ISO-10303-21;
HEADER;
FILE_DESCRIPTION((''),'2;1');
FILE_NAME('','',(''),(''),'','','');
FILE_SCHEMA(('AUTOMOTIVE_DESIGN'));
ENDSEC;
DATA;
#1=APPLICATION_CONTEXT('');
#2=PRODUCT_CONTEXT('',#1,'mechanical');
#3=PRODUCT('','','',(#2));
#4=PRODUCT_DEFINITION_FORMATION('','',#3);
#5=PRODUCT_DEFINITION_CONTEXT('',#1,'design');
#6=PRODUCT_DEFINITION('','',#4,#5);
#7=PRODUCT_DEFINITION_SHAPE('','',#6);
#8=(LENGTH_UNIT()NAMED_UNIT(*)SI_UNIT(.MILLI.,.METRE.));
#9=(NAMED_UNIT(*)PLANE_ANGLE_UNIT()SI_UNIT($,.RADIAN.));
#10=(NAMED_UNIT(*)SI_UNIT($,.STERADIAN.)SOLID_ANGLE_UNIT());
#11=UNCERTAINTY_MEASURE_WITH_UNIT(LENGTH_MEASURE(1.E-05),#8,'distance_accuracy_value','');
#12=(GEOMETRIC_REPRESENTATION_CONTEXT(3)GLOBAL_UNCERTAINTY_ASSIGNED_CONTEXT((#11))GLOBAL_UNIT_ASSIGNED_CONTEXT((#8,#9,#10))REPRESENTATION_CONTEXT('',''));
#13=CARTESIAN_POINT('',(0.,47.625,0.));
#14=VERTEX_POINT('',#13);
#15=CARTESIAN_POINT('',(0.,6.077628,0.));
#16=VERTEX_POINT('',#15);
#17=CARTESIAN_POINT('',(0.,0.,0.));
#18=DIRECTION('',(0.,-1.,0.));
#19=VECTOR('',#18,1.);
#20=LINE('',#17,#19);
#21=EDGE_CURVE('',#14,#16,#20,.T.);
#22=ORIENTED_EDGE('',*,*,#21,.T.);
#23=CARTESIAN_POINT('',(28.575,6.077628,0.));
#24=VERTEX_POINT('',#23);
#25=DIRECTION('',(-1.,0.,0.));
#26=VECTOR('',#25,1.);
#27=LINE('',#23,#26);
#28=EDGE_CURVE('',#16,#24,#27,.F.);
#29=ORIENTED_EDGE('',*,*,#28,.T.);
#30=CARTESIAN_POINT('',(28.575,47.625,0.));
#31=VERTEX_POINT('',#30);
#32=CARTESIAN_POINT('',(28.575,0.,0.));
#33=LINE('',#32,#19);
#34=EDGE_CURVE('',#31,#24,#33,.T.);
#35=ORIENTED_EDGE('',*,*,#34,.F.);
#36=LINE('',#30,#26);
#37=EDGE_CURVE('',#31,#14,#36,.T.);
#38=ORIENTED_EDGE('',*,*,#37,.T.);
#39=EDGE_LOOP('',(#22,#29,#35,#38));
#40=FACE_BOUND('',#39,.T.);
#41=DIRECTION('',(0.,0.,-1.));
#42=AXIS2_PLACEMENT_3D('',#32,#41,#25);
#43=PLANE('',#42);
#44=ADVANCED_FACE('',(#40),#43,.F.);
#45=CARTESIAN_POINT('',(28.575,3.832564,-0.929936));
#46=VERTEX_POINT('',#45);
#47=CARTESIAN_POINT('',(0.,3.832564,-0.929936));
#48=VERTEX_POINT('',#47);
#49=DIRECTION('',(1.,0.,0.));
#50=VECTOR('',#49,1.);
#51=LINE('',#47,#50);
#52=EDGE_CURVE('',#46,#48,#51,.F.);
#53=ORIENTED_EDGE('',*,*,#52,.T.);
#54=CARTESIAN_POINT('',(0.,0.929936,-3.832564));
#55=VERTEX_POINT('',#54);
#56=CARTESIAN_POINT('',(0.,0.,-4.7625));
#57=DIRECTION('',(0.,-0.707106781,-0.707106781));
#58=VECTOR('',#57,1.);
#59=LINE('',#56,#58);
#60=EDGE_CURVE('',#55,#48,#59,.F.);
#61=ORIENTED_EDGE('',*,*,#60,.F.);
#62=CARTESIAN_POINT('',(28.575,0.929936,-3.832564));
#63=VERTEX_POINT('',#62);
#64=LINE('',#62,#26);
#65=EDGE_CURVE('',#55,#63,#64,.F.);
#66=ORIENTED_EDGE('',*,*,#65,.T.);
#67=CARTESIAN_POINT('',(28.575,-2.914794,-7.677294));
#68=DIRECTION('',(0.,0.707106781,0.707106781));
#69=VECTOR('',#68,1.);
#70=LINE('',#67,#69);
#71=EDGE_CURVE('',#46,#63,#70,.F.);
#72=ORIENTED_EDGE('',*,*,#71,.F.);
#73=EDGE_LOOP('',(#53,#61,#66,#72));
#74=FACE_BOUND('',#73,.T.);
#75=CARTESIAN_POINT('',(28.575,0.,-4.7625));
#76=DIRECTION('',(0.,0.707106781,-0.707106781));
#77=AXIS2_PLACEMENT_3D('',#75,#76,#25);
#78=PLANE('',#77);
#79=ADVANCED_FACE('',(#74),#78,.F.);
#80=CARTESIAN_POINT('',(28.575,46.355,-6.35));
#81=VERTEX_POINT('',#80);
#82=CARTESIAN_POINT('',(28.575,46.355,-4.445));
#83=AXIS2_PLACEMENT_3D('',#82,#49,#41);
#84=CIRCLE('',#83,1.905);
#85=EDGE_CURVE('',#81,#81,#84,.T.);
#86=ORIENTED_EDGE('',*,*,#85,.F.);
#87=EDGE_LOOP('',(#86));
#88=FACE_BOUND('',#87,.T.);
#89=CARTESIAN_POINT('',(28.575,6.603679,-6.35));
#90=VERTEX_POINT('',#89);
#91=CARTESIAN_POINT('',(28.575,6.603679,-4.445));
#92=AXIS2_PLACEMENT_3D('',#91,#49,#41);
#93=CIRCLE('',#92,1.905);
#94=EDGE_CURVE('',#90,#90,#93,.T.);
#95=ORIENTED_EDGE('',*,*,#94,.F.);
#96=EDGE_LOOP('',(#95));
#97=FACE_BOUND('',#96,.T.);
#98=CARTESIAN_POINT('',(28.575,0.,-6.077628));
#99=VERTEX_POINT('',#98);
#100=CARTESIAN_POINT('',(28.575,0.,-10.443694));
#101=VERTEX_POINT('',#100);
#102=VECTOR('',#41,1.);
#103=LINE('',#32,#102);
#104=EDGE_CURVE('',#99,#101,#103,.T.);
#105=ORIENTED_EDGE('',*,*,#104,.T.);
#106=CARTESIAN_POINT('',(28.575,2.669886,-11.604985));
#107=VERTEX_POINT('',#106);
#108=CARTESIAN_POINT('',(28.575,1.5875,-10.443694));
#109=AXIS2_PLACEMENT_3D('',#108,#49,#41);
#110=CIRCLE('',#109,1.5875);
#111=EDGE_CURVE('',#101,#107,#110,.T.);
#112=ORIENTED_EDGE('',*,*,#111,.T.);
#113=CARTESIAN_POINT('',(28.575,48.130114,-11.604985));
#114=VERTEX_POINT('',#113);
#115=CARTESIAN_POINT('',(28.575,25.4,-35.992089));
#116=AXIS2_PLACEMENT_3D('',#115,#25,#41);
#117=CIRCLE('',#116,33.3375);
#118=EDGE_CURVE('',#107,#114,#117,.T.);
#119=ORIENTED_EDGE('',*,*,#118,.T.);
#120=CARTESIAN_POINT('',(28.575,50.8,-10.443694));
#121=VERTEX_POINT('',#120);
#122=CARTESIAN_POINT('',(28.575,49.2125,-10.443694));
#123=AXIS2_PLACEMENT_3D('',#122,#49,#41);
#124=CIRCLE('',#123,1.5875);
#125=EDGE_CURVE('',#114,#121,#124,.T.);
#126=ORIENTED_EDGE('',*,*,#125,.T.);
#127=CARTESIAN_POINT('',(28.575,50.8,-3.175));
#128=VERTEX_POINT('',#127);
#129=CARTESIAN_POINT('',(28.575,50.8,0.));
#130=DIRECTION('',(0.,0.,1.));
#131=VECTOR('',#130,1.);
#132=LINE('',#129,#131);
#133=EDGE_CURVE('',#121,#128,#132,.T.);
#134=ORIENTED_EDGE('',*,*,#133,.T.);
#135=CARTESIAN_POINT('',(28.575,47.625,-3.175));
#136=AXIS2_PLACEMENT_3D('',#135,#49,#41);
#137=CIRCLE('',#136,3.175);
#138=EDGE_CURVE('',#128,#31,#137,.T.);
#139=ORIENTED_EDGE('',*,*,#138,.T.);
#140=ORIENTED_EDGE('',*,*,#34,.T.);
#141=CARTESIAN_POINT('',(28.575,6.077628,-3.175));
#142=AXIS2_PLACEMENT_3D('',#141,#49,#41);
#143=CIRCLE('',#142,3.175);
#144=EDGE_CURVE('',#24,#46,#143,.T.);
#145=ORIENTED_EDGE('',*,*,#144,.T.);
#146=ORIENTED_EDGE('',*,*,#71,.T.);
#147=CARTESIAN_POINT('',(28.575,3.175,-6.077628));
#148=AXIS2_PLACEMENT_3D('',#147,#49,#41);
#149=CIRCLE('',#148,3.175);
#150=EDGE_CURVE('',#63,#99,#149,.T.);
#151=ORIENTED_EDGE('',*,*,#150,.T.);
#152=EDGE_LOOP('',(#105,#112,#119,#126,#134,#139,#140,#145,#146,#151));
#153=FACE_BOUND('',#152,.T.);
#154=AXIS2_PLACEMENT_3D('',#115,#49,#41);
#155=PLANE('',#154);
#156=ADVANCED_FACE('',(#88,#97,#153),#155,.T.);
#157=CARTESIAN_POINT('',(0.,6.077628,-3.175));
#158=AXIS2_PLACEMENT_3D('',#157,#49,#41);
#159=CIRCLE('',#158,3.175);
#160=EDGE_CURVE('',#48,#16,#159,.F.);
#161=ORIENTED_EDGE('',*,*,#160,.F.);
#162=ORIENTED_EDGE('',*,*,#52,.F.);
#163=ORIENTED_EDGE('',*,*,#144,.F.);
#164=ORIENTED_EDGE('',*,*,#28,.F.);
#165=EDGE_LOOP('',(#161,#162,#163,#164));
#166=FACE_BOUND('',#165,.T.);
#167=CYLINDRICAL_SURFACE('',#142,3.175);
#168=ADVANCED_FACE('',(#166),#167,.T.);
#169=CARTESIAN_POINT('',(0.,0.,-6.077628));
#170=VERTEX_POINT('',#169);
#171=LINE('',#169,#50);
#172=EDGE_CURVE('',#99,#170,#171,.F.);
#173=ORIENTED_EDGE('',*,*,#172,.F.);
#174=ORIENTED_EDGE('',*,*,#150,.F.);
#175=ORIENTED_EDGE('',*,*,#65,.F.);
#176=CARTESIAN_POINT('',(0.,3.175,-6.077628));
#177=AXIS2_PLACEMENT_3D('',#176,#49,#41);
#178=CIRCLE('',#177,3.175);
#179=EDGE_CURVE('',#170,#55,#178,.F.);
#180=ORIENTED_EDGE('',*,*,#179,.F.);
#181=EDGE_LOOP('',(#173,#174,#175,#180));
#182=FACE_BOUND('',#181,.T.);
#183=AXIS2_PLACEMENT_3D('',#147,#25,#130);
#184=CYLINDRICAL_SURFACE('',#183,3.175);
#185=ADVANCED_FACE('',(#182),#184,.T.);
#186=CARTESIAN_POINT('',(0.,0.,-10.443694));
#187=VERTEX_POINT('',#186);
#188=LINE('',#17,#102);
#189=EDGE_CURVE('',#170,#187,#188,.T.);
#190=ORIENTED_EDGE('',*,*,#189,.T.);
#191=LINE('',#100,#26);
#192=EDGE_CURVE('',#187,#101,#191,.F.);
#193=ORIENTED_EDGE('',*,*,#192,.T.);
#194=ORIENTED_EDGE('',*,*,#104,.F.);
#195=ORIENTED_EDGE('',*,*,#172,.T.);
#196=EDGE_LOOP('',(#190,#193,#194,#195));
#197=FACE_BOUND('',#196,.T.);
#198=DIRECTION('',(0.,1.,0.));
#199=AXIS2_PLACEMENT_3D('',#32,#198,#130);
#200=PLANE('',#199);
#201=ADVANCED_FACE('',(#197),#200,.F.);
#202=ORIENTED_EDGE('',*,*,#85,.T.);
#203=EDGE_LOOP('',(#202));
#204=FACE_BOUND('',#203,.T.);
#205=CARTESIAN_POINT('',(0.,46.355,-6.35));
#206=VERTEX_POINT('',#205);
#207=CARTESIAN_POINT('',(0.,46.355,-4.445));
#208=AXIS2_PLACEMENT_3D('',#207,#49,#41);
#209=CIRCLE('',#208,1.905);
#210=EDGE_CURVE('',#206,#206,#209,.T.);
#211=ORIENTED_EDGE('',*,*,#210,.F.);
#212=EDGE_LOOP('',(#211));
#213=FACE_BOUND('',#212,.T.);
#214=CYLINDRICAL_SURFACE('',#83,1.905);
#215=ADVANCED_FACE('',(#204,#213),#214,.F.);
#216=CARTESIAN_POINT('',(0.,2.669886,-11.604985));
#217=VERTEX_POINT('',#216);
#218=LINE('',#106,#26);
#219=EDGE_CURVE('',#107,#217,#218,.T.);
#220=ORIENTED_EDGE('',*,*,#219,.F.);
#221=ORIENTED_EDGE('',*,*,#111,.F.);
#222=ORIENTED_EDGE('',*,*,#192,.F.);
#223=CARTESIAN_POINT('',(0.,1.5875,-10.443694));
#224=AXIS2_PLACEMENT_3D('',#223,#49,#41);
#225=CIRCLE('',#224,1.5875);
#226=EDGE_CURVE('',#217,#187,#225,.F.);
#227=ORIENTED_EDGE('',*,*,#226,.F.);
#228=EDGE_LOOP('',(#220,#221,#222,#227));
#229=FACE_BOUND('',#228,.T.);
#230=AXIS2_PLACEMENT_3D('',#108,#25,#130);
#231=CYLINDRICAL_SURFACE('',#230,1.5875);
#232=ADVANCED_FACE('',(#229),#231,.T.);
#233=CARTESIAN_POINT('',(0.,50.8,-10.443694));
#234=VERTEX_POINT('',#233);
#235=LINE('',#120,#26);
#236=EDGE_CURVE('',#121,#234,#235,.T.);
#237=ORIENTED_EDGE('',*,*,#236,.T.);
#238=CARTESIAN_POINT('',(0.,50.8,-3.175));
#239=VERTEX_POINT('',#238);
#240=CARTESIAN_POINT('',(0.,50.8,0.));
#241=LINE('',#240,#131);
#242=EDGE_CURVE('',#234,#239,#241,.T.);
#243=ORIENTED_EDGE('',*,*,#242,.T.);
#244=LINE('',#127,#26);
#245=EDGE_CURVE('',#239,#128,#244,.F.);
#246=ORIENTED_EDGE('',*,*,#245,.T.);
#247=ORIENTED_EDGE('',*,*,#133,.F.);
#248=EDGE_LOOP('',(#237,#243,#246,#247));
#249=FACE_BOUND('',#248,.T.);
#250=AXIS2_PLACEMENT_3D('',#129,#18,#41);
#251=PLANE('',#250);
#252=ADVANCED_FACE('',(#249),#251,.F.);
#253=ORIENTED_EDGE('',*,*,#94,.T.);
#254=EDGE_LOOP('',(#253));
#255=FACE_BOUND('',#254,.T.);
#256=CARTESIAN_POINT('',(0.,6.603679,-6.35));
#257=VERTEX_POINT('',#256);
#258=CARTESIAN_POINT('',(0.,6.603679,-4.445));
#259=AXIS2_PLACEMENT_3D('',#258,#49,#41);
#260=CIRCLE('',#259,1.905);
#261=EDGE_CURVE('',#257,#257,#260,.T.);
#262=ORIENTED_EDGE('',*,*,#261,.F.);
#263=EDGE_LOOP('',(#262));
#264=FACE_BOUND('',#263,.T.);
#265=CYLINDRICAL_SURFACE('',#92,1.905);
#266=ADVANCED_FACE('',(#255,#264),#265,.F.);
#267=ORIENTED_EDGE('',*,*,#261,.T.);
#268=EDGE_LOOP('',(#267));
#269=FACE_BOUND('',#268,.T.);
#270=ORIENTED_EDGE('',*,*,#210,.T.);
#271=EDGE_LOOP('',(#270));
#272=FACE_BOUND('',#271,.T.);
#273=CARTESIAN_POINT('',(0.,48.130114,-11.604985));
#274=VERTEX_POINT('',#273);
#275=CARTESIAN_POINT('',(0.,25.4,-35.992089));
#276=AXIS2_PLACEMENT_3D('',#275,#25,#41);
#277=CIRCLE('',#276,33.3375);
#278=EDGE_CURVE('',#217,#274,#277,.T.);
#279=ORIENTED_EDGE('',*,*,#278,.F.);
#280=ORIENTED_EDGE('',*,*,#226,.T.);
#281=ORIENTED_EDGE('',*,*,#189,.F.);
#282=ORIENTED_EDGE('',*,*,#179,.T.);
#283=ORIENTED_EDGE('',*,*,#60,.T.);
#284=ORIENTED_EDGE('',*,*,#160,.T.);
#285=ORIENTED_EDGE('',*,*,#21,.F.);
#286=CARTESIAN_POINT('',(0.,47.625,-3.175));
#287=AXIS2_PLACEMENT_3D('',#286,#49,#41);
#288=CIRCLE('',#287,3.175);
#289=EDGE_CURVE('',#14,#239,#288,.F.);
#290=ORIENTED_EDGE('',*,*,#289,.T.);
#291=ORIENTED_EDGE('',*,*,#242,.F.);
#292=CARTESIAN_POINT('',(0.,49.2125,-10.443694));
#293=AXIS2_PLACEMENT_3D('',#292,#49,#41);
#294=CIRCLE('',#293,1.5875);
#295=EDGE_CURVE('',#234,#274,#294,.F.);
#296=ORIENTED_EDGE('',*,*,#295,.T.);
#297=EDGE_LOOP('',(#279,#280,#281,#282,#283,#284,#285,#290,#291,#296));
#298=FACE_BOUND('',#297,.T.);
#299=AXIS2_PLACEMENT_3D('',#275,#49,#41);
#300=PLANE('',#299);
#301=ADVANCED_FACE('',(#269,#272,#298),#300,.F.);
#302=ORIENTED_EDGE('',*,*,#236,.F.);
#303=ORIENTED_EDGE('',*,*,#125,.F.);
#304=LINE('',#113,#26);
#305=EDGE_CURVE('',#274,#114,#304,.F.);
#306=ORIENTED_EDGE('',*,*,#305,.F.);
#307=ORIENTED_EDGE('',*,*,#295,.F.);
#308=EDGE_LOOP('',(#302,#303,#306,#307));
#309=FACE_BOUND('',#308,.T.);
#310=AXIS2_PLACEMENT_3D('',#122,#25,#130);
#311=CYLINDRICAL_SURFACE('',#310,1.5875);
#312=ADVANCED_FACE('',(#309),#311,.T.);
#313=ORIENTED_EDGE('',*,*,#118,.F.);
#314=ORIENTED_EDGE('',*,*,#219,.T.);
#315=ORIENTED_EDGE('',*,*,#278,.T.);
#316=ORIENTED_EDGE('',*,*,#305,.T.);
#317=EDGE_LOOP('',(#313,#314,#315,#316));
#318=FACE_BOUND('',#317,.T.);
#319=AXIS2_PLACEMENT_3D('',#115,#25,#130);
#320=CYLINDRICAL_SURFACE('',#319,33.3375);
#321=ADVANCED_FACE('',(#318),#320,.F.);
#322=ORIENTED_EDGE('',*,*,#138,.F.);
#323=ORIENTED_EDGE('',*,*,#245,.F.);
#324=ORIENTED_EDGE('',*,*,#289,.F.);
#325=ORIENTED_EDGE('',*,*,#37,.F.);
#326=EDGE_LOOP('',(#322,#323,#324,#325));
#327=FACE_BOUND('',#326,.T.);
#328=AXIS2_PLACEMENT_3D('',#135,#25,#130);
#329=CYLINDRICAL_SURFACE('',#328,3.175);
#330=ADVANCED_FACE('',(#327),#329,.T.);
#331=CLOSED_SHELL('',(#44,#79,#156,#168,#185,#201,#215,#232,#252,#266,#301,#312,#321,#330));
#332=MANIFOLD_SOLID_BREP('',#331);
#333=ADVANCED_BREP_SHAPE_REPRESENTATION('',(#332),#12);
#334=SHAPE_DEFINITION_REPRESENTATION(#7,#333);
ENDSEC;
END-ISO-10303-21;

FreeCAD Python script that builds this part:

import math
import FreeCAD as App
import Part
import Sketcher
from FreeCAD import Vector
Q = App.Units.Quantity


def edges_at(feature, points):
    """Names of the edges that pass closest to the given points."""
    edges = feature.Shape.Edges
    near = lambda p: min(range(len(edges)), key=lambda i: edges[i].distToShape(Part.Vertex(*p))[0])
    return sorted({f"Edge{near(p) + 1}" for p in points})

doc = App.newDocument("Part")
body = doc.addObject("PartDesign::Body", "Body")

# Sketch on YZ plane
sketch1 = doc.addObject("Sketcher::SketchObject", "Sketch")
body.addObject(sketch1)
sketch1.AttachmentSupport = (doc.YZ_Plane, [""])
sketch1.MapMode = "FlatFace"
sketch1.addGeometry(Part.LineSegment(Vector(51, 0, 0), Vector(0, 0, 0)), False)
sketch1.addGeometry(Part.LineSegment(Vector(0, 0, 0), Vector(0, -14, 0)), False)
sketch1.addGeometry(Part.ArcOfCircle(Part.Circle(Vector(25, -36, 0), Vector(0, 0, 1), 33), math.radians(40), math.radians(140)), False)
sketch1.addGeometry(Part.LineSegment(Vector(51, -14, 0), Vector(51, 0, 0)), False)
sketch1.addConstraint(Sketcher.Constraint("Coincident", 0, 2, 1, 1))
sketch1.addConstraint(Sketcher.Constraint("Coincident", 1, 2, 2, 2))
sketch1.addConstraint(Sketcher.Constraint("Coincident", 2, 1, 3, 1))
sketch1.addConstraint(Sketcher.Constraint("Coincident", 3, 2, 0, 1))
sketch1.addConstraint(Sketcher.Constraint("Horizontal", 0))
sketch1.addConstraint(Sketcher.Constraint("Vertical", 1))
sketch1.addConstraint(Sketcher.Constraint("Vertical", 3))
sketch1.addConstraint(Sketcher.Constraint("Coincident", 0, 2, -1, 1))
sketch1.addConstraint(Sketcher.Constraint("Horizontal", 1, 2, 2, 1))
sketch1.addConstraint(Sketcher.Constraint("DistanceX", 0, 2, 0, 1, Q("2 in")))
sketch1.addConstraint(Sketcher.Constraint("Radius", 2, Q("1.3125 in")))
sketch1.addConstraint(Sketcher.Constraint("DistanceY", 1, 2, 1, 1, 14.399755))
pad1 = doc.addObject("PartDesign::Pad", "Pad")
body.addObject(pad1)
pad1.Profile = sketch1
pad1.Length = Q("1.125 in")
doc.recompute()

chamfer = doc.addObject("PartDesign::Chamfer", "Chamfer")
body.addObject(chamfer)
chamfer.Base = (pad1, edges_at(pad1, [(14.287, 0, 0)]))
chamfer.Size = Q("0.1875 in")
doc.recompute()

fillet = doc.addObject("PartDesign::Fillet", "Fillet")
body.addObject(fillet)
fillet.Base = (chamfer, edges_at(chamfer, [(14.287, 0, -4.763), (14.287, 4.763, 0), (14.287, 50.8, 0)]))
fillet.Radius = Q("0.125 in")
doc.recompute()

fillet2 = doc.addObject("PartDesign::Fillet", "Fillet001")
body.addObject(fillet2)
fillet2.Base = (fillet, edges_at(fillet, [(14.287, 50.8, -14.4), (14.287, 0, -14.4)]))
fillet2.Radius = Q("0.0625 in")

# Sketch on YZ plane
sketch2 = doc.addObject("Sketcher::SketchObject", "Sketch001")
body.addObject(sketch2)
sketch2.AttachmentSupport = (doc.YZ_Plane, [""])
sketch2.MapMode = "FlatFace"
sketch2.AttachmentOffset = App.Placement(Vector(0, 0, 1.125 * 25.4), App.Rotation())
sketch2.addGeometry(Part.Circle(Vector(46.4, -4.4, 0), Vector(0, 0, 1), 1.9), False)
sketch2.addGeometry(Part.Circle(Vector(6.6, -4.4, 0), Vector(0, 0, 1), 1.9), False)
sketch2.addConstraint(Sketcher.Constraint("Equal", 0, 1))
sketch2.addConstraint(Sketcher.Constraint("Horizontal", 0, 3, 1, 3))
sketch2.addConstraint(Sketcher.Constraint("Diameter", 0, Q("0.15 in")))
sketch2.addConstraint(Sketcher.Constraint("DistanceX", -1, 1, 0, 3, Q("1.825 in")))
sketch2.addConstraint(Sketcher.Constraint("DistanceY", 0, 3, -1, 1, Q("0.175 in")))
sketch2.addConstraint(Sketcher.Constraint("DistanceX", -1, 1, 1, 3, 6.603679))
doc.recompute()
hole = doc.addObject("PartDesign::Hole", "Hole")
body.addObject(hole)
hole.Profile = sketch2
hole.ThreadType = "None"
hole.Diameter = Q("0.15 in")
hole.DepthType = "ThroughAll"

doc.recompute()
